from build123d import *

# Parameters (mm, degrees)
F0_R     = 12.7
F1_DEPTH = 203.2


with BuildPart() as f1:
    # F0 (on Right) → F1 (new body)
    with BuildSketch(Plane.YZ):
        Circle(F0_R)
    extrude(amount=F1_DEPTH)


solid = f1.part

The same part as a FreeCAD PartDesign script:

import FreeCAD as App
import Part
import Sketcher
Q = App.Units.Quantity

doc = App.newDocument("Part")
body = doc.addObject("PartDesign::Body", "Body")

# Sketch on YZ plane
sketch1 = body.newObject("Sketcher::SketchObject", "Sketch")
sketch1.AttachmentSupport = (doc.getObject("YZ_Plane"), [""])
sketch1.MapMode = "FlatFace"
sketch1.addGeometry(Part.Circle(App.Vector(0, 0, 0), App.Vector(0, 0, 1), 12.7), False)
sketch1.addConstraint([
    Sketcher.Constraint("Coincident", 0, 3, -1, 1),
    Sketcher.Constraint("Diameter", 0, Q("1 in")),
])
pad1 = body.newObject("PartDesign::Pad", "Pad")
pad1.Profile = sketch1
pad1.Length = Q("8 in")

doc.recompute()
